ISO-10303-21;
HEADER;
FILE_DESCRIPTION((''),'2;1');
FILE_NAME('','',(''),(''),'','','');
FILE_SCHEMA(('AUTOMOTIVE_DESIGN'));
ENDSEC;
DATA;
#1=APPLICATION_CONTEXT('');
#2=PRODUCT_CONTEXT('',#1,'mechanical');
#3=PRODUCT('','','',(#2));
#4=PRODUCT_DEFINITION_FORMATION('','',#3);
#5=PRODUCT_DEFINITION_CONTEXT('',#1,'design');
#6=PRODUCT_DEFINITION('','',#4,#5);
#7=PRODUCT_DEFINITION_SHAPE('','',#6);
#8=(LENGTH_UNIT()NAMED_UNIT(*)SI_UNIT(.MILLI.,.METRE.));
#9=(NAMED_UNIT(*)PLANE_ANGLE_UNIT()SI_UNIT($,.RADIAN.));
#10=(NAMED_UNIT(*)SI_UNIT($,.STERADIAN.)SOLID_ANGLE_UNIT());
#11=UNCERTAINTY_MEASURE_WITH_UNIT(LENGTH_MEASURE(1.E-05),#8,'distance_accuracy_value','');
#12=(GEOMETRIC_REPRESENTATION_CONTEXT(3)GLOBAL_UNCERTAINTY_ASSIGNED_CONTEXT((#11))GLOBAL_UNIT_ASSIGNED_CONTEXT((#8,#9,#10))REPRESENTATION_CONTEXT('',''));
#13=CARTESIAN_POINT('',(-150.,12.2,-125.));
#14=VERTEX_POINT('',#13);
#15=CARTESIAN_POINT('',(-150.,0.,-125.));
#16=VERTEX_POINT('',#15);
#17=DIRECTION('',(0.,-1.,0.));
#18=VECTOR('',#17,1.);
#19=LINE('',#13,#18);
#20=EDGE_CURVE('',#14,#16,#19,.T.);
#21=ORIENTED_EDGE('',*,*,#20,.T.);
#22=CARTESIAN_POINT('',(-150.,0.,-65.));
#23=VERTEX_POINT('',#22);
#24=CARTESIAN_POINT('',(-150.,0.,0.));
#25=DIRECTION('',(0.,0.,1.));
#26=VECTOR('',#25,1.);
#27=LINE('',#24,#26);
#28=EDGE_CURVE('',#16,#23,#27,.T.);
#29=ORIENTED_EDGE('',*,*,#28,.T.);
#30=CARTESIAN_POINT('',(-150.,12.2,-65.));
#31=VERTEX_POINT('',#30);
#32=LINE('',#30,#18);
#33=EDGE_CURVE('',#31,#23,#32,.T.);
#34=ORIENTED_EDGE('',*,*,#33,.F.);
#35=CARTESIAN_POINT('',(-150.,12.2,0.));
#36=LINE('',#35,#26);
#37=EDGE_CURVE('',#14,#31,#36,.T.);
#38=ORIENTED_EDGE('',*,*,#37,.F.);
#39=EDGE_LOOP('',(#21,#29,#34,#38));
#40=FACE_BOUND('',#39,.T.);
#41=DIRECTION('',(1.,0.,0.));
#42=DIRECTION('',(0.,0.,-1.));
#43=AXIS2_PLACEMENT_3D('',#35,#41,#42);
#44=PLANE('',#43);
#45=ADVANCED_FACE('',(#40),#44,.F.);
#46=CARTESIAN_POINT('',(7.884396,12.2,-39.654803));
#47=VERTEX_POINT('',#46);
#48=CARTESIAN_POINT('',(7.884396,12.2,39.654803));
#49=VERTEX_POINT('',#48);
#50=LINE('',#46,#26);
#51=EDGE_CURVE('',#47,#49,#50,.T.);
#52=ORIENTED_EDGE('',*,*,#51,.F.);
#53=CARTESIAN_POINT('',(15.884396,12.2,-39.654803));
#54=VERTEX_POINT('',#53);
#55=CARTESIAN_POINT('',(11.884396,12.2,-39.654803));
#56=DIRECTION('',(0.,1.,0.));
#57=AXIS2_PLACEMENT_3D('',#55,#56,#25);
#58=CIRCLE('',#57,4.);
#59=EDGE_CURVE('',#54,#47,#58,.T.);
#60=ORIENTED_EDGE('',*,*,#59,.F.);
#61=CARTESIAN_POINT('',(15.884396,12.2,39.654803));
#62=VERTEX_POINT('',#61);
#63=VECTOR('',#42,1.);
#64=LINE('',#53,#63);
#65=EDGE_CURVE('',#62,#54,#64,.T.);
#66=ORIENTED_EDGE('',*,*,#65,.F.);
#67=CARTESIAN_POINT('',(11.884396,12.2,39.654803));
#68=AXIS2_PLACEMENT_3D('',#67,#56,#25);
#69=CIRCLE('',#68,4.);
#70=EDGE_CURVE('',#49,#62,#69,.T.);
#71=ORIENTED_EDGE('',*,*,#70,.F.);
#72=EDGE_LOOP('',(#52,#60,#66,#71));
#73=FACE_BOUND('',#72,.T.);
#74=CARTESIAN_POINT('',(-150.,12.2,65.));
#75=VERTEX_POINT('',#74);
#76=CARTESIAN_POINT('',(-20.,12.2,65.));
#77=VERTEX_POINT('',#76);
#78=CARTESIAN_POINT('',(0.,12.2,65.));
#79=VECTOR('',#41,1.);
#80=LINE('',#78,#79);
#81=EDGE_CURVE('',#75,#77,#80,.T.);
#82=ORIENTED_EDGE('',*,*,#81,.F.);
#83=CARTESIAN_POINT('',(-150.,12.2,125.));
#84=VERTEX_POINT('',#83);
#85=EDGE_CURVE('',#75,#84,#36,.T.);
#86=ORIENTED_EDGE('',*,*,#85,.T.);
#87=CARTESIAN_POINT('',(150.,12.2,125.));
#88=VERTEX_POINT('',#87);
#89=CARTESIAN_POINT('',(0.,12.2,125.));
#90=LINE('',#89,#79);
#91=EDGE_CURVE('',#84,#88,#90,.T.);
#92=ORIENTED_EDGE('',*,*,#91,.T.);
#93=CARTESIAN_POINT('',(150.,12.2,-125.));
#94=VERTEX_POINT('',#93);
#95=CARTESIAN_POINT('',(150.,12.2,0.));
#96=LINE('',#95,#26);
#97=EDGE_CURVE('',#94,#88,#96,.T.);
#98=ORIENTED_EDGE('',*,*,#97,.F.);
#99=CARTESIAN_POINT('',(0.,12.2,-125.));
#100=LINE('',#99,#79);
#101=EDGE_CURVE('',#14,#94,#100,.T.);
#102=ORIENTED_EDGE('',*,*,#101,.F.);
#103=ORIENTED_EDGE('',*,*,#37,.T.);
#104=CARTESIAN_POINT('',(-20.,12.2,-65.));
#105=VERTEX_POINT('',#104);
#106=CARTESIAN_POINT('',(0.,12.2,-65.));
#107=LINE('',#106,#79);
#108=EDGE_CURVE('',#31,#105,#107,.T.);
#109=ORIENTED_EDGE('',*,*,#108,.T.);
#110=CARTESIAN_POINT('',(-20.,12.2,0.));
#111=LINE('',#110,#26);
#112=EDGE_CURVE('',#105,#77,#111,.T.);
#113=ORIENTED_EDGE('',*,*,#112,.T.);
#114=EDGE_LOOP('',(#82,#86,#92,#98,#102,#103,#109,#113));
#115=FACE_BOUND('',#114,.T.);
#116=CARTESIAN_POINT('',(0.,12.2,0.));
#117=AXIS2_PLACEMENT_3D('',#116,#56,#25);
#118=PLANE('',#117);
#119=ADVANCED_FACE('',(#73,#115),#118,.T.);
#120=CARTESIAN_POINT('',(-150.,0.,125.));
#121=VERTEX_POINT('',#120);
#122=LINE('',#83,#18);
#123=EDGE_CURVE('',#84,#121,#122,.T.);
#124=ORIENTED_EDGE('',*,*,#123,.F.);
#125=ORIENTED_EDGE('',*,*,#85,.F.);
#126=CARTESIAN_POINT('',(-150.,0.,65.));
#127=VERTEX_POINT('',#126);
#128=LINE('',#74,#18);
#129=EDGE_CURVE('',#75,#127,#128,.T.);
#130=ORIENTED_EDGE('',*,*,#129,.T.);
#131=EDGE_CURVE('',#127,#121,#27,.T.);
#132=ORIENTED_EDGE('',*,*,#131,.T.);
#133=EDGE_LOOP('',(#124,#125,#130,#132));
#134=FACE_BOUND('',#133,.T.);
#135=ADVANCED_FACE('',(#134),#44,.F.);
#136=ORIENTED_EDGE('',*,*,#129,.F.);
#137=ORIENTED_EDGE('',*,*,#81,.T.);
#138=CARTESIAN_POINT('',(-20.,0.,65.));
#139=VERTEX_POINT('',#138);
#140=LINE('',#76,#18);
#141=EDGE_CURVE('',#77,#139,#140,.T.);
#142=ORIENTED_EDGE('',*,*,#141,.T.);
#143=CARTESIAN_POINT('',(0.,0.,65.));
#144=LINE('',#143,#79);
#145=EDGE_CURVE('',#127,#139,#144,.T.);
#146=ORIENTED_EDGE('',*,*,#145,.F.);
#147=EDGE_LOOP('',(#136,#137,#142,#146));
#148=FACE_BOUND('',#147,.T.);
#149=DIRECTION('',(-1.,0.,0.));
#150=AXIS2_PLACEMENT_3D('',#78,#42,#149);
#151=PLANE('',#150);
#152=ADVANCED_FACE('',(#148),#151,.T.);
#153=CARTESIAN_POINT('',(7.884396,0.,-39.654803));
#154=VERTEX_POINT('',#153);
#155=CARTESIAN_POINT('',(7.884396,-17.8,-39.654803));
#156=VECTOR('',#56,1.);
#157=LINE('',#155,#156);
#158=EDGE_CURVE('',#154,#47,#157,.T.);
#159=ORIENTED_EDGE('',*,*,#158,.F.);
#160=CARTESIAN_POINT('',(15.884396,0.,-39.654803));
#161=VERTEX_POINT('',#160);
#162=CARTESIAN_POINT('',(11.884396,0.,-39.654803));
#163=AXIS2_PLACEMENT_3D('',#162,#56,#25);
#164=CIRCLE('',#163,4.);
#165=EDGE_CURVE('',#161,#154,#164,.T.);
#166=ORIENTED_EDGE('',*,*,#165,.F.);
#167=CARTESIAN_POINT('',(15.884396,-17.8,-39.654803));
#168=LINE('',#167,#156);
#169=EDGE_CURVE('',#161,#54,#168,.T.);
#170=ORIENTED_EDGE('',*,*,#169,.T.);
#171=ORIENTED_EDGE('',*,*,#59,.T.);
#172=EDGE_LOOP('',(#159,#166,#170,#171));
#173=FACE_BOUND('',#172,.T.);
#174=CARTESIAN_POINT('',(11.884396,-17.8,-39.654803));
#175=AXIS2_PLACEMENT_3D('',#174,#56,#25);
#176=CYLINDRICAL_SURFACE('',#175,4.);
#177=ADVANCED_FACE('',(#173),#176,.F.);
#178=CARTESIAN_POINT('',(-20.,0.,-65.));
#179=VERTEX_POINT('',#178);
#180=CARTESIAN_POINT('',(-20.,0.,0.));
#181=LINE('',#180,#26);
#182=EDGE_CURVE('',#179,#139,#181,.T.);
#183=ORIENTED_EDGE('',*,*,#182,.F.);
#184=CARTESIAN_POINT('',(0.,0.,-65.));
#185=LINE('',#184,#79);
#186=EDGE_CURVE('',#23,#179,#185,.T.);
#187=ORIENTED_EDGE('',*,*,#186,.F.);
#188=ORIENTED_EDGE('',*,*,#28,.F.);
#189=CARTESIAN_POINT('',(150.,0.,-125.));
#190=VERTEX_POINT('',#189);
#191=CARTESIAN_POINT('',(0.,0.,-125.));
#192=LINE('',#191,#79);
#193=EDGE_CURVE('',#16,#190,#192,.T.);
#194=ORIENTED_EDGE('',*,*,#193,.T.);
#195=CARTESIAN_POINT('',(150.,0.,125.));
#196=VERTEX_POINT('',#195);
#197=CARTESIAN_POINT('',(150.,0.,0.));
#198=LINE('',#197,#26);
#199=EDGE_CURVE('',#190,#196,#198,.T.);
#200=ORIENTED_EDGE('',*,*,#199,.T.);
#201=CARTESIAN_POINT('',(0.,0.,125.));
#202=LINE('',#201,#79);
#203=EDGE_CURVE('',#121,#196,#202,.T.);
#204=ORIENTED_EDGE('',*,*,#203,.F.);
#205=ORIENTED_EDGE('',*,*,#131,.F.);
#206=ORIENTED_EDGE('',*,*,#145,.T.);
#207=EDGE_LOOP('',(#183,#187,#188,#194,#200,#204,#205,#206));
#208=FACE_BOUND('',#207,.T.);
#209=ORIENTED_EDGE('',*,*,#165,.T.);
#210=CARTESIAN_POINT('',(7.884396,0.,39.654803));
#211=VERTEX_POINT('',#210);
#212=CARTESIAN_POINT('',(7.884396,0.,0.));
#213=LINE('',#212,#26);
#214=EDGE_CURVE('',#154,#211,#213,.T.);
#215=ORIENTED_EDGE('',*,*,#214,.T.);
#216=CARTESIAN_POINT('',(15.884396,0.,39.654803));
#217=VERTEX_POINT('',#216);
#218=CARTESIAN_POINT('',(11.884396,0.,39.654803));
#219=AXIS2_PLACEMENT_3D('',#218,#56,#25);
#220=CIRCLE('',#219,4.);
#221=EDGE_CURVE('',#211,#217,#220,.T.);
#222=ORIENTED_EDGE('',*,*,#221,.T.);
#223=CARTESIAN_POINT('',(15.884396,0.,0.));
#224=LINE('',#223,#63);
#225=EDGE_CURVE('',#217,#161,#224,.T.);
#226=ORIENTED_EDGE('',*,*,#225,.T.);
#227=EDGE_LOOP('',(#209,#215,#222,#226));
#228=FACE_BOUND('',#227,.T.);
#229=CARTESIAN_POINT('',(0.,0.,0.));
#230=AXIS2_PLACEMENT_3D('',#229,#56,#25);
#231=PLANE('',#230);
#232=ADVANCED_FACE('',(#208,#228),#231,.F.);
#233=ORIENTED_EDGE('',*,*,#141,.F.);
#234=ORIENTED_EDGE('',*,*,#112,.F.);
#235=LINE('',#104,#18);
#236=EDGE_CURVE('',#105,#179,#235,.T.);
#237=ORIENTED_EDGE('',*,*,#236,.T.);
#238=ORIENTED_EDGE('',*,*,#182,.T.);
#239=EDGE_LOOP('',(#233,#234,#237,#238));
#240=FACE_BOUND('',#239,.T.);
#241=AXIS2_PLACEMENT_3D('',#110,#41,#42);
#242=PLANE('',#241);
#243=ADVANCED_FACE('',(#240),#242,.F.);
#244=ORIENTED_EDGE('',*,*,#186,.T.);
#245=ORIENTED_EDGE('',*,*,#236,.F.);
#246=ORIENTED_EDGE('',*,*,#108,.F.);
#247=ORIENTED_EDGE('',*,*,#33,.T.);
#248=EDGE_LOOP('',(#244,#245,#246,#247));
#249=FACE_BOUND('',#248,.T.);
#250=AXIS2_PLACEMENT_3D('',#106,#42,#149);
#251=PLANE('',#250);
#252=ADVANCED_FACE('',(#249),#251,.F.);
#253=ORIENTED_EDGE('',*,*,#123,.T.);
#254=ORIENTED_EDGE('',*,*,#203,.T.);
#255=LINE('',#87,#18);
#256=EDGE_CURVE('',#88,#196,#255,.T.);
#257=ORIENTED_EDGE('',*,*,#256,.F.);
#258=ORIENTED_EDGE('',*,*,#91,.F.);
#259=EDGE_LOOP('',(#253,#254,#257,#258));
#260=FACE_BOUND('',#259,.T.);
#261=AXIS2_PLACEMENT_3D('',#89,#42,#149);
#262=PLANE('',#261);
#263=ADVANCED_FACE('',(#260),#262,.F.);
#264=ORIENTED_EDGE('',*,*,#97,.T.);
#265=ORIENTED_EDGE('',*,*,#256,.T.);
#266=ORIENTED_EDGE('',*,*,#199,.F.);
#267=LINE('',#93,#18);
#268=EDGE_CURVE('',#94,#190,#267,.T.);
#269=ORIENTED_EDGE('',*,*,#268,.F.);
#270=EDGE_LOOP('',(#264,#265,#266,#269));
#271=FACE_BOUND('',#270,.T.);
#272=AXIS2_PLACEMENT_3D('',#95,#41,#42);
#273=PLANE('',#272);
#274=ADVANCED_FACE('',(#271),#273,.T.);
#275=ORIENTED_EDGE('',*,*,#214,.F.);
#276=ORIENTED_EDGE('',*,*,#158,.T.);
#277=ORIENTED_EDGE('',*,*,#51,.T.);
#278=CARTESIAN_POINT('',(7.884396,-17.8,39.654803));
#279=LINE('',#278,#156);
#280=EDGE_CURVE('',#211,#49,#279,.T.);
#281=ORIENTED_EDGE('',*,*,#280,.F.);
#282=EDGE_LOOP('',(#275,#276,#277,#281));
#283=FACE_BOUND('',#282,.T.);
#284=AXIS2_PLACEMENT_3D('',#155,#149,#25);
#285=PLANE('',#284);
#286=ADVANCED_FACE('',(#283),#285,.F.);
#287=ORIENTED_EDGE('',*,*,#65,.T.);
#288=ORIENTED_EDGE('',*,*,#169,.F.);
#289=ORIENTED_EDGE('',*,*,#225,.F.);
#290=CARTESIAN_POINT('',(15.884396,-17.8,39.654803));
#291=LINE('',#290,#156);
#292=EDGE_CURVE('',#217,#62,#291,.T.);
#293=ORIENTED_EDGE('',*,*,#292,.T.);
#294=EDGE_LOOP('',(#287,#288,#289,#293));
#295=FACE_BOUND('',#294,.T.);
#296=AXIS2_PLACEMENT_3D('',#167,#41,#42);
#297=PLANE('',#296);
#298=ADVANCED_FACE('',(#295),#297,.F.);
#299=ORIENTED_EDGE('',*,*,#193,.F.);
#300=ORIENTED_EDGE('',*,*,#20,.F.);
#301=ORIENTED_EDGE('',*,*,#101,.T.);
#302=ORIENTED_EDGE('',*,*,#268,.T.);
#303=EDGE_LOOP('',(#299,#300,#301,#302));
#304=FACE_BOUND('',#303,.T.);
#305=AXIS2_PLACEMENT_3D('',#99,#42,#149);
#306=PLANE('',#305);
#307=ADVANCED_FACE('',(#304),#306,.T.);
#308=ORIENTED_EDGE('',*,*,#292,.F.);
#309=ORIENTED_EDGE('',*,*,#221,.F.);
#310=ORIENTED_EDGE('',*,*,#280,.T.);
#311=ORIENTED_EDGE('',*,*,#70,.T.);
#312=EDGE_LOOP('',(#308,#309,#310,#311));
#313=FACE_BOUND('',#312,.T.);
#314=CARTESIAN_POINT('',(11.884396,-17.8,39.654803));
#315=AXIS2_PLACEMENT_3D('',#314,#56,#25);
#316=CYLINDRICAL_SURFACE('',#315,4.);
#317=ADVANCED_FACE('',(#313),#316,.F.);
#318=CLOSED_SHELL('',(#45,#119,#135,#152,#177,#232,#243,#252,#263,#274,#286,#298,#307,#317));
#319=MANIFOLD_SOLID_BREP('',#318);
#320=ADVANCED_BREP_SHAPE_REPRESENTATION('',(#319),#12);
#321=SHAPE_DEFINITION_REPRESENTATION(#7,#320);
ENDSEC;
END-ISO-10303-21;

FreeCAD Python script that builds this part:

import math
import FreeCAD as App
import Part
import Sketcher

V = App.Vector

doc = App.newDocument("Part")
body = doc.addObject("PartDesign::Body", "Body")

sketch1 = body.newObject("Sketcher::SketchObject", "Sketch")
sketch1.AttachmentSupport = (doc.getObject("XZ_Plane"), [""])
sketch1.MapMode = "FlatFace"
sketch1.addGeometry(Part.LineSegment(V(150, -125, 0), V(-150, -125, 0)), False)
sketch1.addGeometry(Part.LineSegment(V(-150, -125, 0), V(-150, -65, 0)), False)
sketch1.addGeometry(Part.LineSegment(V(-150, -65, 0), V(-20, -65, 0)), False)
sketch1.addGeometry(Part.LineSegment(V(-20, -65, 0), V(-20, 65, 0)), False)
sketch1.addGeometry(Part.LineSegment(V(-20, 65, 0), V(-150, 65, 0)), False)
sketch1.addGeometry(Part.LineSegment(V(-150, 65, 0), V(-150, 125, 0)), False)
sketch1.addGeometry(Part.LineSegment(V(-150, 125, 0), V(150, 125, 0)), False)
sketch1.addGeometry(Part.LineSegment(V(150, 125, 0), V(150, -125, 0)), False)
sketch1.addConstraint(Sketcher.Constraint("Coincident", 0, 2, 1, 1))
sketch1.addConstraint(Sketcher.Constraint("Coincident", 1, 2, 2, 1))
sketch1.addConstraint(Sketcher.Constraint("Coincident", 2, 2, 3, 1))
sketch1.addConstraint(Sketcher.Constraint("Coincident", 3, 2, 4, 1))
sketch1.addConstraint(Sketcher.Constraint("Coincident", 4, 2, 5, 1))
sketch1.addConstraint(Sketcher.Constraint("Coincident", 5, 2, 6, 1))
sketch1.addConstraint(Sketcher.Constraint("Coincident", 6, 2, 7, 1))
sketch1.addConstraint(Sketcher.Constraint("Coincident", 7, 2, 0, 1))
sketch1.addConstraint(Sketcher.Constraint("Horizontal", 0))
sketch1.addConstraint(Sketcher.Constraint("Vertical", 1))
sketch1.addConstraint(Sketcher.Constraint("Horizontal", 2))
sketch1.addConstraint(Sketcher.Constraint("Vertical", 3))
sketch1.addConstraint(Sketcher.Constraint("Horizontal", 4))
sketch1.addConstraint(Sketcher.Constraint("Vertical", 5))
sketch1.addConstraint(Sketcher.Constraint("Horizontal", 6))
sketch1.addConstraint(Sketcher.Constraint("Vertical", 7))
sketch1.addConstraint(Sketcher.Constraint("Symmetric", 0, 2, 6, 2, -1, 1))
sketch1.addConstraint(Sketcher.Constraint("Symmetric", 1, 2, 4, 2, -1))
sketch1.addConstraint(Sketcher.Constraint("Equal", 4, 3))
sketch1.addConstraint(Sketcher.Constraint("DistanceX", 0, 2, 0, 1, 300.0))
sketch1.addConstraint(Sketcher.Constraint("DistanceX", 2, 1, 2, 2, 130.0))
sketch1.addConstraint(Sketcher.Constraint("DistanceY", 1, 1, 1, 2, 60.0))
pad1 = body.newObject("PartDesign::Pad", "Pad")
pad1.Profile = sketch1
pad1.Length = 12.2
pad1.Reversed = True

sketch2 = body.newObject("Sketcher::SketchObject", "Sketch001")
sketch2.AttachmentSupport = (doc.getObject("XZ_Plane"), [""])
sketch2.MapMode = "FlatFace"
sketch2.AttachmentOffset = App.Placement(V(0, 0, -12.2), App.Rotation())
sketch2.addGeometry(Part.LineSegment(V(15.9, 39.7, 0), V(15.9, -39.7, 0)), False)
sketch2.addGeometry(Part.ArcOfCircle(Part.Circle(V(11.9, -39.7, 0), V(0, 0, 1), 4), math.radians(180), math.radians(360)), False)
sketch2.addGeometry(Part.LineSegment(V(7.9, -39.7, 0), V(7.9, 39.7, 0)), False)
sketch2.addGeometry(Part.ArcOfCircle(Part.Circle(V(11.9, 39.7, 0), V(0, 0, 1), 4), math.radians(0), math.radians(180)), False)
sketch2.addConstraint(Sketcher.Constraint("Tangent", 0, 2, 1, 2))
sketch2.addConstraint(Sketcher.Constraint("Tangent", 1, 1, 2, 1))
sketch2.addConstraint(Sketcher.Constraint("Tangent", 2, 2, 3, 2))
sketch2.addConstraint(Sketcher.Constraint("Tangent", 3, 1, 0, 1))
sketch2.addConstraint(Sketcher.Constraint("Vertical", 0))
sketch2.addConstraint(Sketcher.Constraint("Vertical", 2))
sketch2.addConstraint(Sketcher.Constraint("Radius", 1, 4.0))
sketch2.addConstraint(Sketcher.Constraint("DistanceY", 0, 2, 0, 1, 79.309607))
sketch2.addConstraint(Sketcher.Constraint("DistanceX", -1, 1, 1, 3, 11.884396))
sketch2.addConstraint(Sketcher.Constraint("DistanceY", 1, 3, -1, 1, 39.654803))
pocket1 = body.newObject("PartDesign::Pocket", "Pocket")
pocket1.Profile = sketch2
pocket1.Length = 30
pocket1.Reversed = True

doc.recompute()
